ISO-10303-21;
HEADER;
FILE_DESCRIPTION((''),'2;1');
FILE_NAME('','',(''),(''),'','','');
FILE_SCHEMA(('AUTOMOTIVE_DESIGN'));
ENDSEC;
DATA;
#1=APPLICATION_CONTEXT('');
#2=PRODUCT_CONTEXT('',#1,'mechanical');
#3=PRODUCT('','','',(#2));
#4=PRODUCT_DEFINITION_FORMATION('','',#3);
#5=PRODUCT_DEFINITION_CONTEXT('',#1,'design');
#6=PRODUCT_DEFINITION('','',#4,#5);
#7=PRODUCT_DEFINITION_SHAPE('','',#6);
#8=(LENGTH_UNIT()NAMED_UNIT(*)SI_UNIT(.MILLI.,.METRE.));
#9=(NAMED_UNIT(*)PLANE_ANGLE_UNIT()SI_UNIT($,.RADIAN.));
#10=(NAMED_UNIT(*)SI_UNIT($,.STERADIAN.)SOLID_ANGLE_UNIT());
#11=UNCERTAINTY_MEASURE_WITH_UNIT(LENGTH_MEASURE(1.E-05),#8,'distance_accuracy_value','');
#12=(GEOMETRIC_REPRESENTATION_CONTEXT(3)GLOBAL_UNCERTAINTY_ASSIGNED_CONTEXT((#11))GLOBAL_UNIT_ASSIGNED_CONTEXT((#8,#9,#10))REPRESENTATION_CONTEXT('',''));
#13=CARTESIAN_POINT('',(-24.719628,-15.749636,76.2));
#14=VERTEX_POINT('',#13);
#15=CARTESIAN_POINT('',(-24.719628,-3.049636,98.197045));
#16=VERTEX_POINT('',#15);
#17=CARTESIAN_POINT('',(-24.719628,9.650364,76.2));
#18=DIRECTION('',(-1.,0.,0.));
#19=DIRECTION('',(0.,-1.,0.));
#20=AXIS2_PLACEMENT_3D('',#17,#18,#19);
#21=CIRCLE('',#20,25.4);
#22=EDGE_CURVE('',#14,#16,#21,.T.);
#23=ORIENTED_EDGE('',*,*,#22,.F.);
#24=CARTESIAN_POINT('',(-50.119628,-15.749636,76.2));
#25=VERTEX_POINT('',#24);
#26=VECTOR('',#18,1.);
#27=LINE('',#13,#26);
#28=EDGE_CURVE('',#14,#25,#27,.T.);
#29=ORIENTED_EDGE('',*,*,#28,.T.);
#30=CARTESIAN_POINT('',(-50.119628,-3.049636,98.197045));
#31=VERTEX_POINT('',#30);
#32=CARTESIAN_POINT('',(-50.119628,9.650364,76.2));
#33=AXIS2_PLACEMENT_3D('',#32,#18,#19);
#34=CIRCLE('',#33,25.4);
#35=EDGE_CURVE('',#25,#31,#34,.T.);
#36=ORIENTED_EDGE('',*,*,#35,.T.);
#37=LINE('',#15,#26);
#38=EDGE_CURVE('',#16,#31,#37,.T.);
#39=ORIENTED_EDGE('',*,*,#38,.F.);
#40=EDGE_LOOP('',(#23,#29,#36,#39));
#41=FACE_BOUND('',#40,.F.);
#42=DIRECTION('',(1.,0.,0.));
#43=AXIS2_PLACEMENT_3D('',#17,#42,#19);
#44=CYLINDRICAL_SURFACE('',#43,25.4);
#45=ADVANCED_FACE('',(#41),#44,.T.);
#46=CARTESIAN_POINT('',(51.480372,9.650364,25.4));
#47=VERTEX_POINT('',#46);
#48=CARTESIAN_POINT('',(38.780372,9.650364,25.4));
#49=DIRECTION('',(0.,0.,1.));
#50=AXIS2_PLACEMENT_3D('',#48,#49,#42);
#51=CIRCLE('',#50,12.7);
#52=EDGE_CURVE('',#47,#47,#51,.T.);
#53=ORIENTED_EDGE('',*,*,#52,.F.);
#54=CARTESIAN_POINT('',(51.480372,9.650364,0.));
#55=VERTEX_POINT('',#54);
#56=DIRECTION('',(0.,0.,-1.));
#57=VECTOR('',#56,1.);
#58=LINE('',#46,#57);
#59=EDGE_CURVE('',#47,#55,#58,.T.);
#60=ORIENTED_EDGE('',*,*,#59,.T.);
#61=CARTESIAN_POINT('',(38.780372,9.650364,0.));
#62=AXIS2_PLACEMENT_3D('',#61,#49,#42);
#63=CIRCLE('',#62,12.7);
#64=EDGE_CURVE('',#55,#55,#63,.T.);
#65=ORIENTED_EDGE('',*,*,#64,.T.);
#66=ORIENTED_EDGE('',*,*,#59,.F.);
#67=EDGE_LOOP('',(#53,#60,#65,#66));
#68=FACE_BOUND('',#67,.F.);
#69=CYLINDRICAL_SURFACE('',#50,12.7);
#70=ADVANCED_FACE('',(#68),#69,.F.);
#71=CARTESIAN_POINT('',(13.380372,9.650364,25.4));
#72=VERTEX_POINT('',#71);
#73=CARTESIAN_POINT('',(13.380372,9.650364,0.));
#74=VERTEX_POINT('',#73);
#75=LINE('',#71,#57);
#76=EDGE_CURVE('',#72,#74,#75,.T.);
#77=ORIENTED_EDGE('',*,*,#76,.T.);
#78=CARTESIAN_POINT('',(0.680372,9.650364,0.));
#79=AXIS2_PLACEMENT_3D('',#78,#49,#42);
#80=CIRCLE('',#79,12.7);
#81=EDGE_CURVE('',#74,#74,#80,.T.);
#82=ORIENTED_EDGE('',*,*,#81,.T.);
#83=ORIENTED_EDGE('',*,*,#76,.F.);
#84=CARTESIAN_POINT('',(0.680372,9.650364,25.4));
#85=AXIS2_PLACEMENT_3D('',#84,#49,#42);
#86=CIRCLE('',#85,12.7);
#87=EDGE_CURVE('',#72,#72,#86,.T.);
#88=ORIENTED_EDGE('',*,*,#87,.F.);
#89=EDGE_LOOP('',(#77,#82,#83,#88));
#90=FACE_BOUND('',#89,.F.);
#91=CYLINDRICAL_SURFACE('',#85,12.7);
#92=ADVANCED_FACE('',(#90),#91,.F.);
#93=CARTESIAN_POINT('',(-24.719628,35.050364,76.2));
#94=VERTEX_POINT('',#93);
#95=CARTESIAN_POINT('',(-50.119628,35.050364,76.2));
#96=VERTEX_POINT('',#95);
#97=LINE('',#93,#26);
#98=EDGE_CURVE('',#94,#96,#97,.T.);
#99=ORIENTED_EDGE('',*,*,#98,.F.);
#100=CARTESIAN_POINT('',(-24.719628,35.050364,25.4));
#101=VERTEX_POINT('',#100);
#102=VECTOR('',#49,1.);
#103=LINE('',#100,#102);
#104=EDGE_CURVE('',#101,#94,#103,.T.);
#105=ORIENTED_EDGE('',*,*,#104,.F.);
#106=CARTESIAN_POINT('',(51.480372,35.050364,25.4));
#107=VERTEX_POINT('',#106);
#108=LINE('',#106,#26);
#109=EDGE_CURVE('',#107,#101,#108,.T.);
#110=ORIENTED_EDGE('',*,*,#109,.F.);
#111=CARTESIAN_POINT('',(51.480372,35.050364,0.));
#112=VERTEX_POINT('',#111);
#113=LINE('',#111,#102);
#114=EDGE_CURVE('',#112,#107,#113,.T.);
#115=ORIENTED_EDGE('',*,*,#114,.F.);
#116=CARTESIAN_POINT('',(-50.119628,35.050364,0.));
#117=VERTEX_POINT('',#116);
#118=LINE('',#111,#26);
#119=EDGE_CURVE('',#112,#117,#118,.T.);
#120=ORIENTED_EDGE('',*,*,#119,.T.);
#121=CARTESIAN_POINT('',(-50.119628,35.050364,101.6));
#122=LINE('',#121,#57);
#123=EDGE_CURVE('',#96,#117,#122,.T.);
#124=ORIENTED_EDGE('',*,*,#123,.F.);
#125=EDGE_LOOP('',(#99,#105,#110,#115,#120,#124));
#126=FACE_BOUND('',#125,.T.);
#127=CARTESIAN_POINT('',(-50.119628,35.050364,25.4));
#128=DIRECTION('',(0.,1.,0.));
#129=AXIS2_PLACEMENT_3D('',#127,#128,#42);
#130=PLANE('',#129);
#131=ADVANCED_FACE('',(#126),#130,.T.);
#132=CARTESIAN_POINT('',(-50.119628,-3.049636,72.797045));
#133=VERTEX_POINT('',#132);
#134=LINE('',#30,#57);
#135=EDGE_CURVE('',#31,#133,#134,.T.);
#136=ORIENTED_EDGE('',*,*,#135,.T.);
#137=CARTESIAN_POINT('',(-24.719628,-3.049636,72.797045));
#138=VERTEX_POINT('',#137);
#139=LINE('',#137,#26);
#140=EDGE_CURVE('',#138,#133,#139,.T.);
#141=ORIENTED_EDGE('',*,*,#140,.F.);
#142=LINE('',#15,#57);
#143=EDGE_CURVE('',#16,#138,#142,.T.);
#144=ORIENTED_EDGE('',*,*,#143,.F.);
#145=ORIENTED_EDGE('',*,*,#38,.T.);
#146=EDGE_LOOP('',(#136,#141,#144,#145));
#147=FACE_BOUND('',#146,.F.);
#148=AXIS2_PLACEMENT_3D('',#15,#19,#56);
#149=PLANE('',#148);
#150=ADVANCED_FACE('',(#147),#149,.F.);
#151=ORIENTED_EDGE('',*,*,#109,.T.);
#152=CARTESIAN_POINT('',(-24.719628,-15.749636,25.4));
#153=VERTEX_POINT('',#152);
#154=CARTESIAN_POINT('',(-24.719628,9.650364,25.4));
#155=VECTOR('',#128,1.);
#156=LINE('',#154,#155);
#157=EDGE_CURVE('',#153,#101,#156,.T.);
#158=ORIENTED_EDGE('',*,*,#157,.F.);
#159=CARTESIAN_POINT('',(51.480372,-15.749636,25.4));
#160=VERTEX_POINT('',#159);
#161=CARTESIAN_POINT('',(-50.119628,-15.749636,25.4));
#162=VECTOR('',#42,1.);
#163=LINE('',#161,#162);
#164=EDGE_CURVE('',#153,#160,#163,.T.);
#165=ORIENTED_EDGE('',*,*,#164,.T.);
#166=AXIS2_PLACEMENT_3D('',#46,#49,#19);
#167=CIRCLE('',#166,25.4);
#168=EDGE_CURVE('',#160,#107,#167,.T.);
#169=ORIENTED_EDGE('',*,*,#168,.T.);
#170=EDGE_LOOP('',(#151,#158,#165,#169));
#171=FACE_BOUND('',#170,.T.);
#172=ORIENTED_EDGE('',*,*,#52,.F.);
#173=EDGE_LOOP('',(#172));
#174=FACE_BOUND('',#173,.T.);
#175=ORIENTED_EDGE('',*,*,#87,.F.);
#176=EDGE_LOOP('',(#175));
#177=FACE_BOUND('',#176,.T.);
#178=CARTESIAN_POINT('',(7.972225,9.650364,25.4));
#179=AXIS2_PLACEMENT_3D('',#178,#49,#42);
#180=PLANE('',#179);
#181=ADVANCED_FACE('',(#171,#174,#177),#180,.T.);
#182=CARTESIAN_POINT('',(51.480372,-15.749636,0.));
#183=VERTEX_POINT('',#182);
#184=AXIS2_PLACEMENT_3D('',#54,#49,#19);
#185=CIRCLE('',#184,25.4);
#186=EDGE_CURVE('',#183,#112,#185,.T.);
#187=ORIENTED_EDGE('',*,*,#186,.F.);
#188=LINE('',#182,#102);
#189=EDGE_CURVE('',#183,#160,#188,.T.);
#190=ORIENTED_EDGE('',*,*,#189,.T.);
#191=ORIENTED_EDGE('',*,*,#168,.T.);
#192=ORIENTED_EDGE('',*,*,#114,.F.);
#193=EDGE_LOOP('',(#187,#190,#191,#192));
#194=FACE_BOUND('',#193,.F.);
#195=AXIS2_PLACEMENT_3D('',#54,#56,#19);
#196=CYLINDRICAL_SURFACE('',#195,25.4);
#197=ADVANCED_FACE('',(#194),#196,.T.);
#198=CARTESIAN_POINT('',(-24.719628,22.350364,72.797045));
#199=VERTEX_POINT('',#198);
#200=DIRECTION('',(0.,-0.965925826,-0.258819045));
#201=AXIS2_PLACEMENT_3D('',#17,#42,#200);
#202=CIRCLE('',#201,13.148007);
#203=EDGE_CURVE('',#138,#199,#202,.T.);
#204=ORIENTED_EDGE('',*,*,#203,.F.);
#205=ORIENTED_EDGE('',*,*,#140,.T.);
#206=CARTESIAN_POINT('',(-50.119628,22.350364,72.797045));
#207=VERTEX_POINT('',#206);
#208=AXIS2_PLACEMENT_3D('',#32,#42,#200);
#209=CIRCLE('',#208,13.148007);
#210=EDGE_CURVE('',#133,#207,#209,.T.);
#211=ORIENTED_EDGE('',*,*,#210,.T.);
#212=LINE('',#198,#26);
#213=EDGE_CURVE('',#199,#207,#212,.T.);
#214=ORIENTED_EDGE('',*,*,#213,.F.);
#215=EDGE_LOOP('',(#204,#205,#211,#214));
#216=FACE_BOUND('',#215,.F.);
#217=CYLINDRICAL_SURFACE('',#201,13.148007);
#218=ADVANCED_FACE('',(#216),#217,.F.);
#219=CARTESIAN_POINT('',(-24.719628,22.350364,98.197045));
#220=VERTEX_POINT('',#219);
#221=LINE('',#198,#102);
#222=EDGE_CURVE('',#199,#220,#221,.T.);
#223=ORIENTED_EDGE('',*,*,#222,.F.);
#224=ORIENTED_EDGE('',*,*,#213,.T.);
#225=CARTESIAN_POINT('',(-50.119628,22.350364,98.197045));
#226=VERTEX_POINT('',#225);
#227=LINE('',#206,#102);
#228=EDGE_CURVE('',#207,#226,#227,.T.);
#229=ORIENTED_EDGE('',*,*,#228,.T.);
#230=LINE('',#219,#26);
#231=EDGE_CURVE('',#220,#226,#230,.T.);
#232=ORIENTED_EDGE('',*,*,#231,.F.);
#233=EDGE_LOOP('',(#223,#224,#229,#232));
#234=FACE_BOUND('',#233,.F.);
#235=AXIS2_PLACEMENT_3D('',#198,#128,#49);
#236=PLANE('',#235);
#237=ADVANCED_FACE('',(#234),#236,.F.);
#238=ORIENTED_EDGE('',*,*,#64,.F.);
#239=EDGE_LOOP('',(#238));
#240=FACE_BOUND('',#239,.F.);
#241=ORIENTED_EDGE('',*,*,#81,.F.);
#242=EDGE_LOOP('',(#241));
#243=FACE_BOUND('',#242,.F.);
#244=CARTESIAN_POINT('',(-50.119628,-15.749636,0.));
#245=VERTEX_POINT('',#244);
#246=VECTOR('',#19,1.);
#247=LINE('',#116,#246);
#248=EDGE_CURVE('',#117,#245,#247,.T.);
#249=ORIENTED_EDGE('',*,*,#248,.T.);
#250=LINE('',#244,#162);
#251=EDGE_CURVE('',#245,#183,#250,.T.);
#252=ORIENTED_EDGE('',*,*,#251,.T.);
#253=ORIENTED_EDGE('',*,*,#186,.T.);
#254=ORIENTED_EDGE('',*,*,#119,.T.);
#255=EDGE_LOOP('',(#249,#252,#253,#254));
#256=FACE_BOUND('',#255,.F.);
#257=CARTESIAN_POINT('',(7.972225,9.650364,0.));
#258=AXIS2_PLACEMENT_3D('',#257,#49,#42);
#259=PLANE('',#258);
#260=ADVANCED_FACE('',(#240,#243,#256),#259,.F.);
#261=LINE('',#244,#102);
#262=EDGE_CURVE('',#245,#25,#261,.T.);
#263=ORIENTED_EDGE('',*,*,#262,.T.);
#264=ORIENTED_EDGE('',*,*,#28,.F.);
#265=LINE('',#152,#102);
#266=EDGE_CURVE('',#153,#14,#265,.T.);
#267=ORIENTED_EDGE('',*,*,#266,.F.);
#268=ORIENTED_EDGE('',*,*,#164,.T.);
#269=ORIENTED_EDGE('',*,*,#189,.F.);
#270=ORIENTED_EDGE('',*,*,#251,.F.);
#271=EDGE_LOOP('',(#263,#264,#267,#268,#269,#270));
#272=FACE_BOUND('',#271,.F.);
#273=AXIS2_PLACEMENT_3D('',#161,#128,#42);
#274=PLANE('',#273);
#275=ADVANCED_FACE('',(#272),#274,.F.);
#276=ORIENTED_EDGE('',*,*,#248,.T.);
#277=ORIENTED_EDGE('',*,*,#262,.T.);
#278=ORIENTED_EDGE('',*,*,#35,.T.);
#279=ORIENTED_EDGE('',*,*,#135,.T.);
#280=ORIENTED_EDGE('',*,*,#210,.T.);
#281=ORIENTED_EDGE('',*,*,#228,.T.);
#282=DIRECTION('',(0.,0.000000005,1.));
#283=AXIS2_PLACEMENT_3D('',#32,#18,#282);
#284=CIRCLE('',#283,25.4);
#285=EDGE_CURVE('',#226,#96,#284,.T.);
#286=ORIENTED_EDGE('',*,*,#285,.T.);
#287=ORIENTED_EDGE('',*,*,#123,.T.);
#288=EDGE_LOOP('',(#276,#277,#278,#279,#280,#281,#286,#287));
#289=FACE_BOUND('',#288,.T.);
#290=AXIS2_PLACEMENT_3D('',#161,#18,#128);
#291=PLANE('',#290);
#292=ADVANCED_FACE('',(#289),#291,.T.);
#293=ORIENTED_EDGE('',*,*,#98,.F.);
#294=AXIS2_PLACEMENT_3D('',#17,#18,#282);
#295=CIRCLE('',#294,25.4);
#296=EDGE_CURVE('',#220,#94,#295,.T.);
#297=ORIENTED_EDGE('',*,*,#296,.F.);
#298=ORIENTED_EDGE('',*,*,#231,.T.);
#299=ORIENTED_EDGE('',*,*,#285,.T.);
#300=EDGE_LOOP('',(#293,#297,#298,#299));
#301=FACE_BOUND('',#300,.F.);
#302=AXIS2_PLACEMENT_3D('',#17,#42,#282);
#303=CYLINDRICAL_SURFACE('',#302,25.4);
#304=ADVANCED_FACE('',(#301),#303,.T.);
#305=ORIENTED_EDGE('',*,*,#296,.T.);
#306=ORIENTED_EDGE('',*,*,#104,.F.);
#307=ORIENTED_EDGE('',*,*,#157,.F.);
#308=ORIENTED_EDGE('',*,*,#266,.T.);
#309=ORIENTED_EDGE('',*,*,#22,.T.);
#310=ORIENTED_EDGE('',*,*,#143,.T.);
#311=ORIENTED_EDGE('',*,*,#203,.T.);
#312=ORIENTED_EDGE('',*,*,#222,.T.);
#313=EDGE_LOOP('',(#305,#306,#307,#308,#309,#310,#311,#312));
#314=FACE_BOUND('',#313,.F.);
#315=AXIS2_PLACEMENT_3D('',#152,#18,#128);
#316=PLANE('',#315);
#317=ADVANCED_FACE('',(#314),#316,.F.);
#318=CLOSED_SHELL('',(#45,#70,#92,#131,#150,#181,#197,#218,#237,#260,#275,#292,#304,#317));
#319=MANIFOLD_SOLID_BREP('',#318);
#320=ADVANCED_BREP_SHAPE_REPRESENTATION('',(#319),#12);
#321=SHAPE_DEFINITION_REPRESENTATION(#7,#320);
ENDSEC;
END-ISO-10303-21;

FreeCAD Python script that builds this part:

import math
import FreeCAD as App
import Part
import Sketcher
from FreeCAD import Vector
Q = App.Units.Quantity

doc = App.newDocument("Part")
body = doc.addObject("PartDesign::Body", "Body")

# Sketch on XY plane
sketch1 = body.newObject("Sketcher::SketchObject", "Sketch")
sketch1.AttachmentSupport = (doc.getObject("XY_Plane"), [""])
sketch1.MapMode = "FlatFace"
sketch1.addGeometry([
    Part.ArcOfCircle(Part.Circle(Vector(51, 10, 0), Vector(0, 0, 1), 25), math.radians(-90), math.radians(90)),
    Part.LineSegment(Vector(51, 35, 0), Vector(-50, 35, 0)),
    Part.LineSegment(Vector(-50, 35, 0), Vector(-50, -16, 0)),
    Part.LineSegment(Vector(-50, -16, 0), Vector(51, -16, 0)),
], False)
sketch1.addConstraint([
    Sketcher.Constraint("Tangent", 0, 2, 1, 1),
    Sketcher.Constraint("Coincident", 1, 2, 2, 1),
    Sketcher.Constraint("Coincident", 2, 2, 3, 1),
    Sketcher.Constraint("Tangent", 3, 2, 0, 1),
    Sketcher.Constraint("Horizontal", 1),
    Sketcher.Constraint("Vertical", 2),
    Sketcher.Constraint("Horizontal", 3),
    Sketcher.Constraint("Radius", 0, Q("1 in")),
    Sketcher.Constraint("DistanceX", 1, 2, 1, 1, Q("4 in")),
    Sketcher.Constraint("DistanceX", -1, 1, 0, 3, Q("51.480372 mm")),
    Sketcher.Constraint("DistanceY", -1, 1, 0, 3, Q("9.650364 mm")),
])
pad1 = body.newObject("PartDesign::Pad", "Pad")
pad1.Profile = sketch1
pad1.Length = Q("1 in")

# Sketch on XY plane
sketch2 = body.newObject("Sketcher::SketchObject", "Sketch001")
sketch2.AttachmentSupport = (doc.getObject("XY_Plane"), [""])
sketch2.MapMode = "FlatFace"
sketch2.AttachmentOffset = App.Placement(Vector(0, 0, 1 * 25.4), App.Rotation())
sketch2.addGeometry(Part.Circle(Vector(1, 10, 0), Vector(0, 0, 1), 13), False)
sketch2.addConstraint([
    Sketcher.Constraint("Diameter", 0, Q("1 in")),
    Sketcher.Constraint("DistanceX", -1, 1, 0, 3, Q("0.680372 mm")),
    Sketcher.Constraint("DistanceY", -1, 1, 0, 3, Q("9.650364 mm")),
])
pocket1 = body.newObject("PartDesign::Pocket", "Pocket")
pocket1.Profile = sketch2
pocket1.Length = Q("1 in")

# Sketch on XY plane
sketch3 = body.newObject("Sketcher::SketchObject", "Sketch002")
sketch3.AttachmentSupport = (doc.getObject("XY_Plane"), [""])
sketch3.MapMode = "FlatFace"
sketch3.AttachmentOffset = App.Placement(Vector(0, 0, 1 * 25.4), App.Rotation())
sketch3.addGeometry(Part.Circle(Vector(39, 10, 0), Vector(0, 0, 1), 13), False)
sketch3.addConstraint([
    Sketcher.Constraint("Diameter", 0, Q("1 in")),
    Sketcher.Constraint("DistanceX", -1, 1, 0, 3, Q("38.780372 mm")),
    Sketcher.Constraint("DistanceY", -1, 1, 0, 3, Q("9.650364 mm")),
])
pocket2 = body.newObject("PartDesign::Pocket", "Pocket001")
pocket2.Profile = sketch3
pocket2.Length = Q("1 in")

# Sketch on XY plane
sketch4 = body.newObject("Sketcher::SketchObject", "Sketch003")
sketch4.AttachmentSupport = (doc.getObject("XY_Plane"), [""])
sketch4.MapMode = "FlatFace"
sketch4.AttachmentOffset = App.Placement(Vector(0, 0, 1 * 25.4), App.Rotation())
sketch4.addGeometry([
    Part.LineSegment(Vector(-50, 35, 0), Vector(-50, -16, 0)),
    Part.LineSegment(Vector(-50, -16, 0), Vector(-25, -16, 0)),
    Part.LineSegment(Vector(-25, -16, 0), Vector(-25, 35, 0)),
    Part.LineSegment(Vector(-25, 35, 0), Vector(-50, 35, 0)),
], False)
sketch4.addConstraint([
    Sketcher.Constraint("Coincident", 0, 2, 1, 1),
    Sketcher.Constraint("Coincident", 1, 2, 2, 1),
    Sketcher.Constraint("Coincident", 2, 2, 3, 1),
    Sketcher.Constraint("Coincident", 3, 2, 0, 1),
    Sketcher.Constraint("Vertical", 0),
    Sketcher.Constraint("Horizontal", 1),
    Sketcher.Constraint("Vertical", 2),
    Sketcher.Constraint("Horizontal", 3),
    Sketcher.Constraint("DistanceX", 1, 1, 1, 2, Q("1 in")),
    Sketcher.Constraint("DistanceY", 0, 2, 0, 1, Q("2 in")),
    Sketcher.Constraint("DistanceX", 0, 2, -1, 1, Q("50.119628 mm")),
    Sketcher.Constraint("DistanceY", 0, 2, -1, 1, Q("15.749636 mm")),
])
pad2 = body.newObject("PartDesign::Pad", "Pad001")
pad2.Profile = sketch4
pad2.Length = Q("3 in")

# Sketch on YZ plane
sketch5 = body.newObject("Sketcher::SketchObject", "Sketch004")
sketch5.AttachmentSupport = (doc.getObject("YZ_Plane"), [""])
sketch5.MapMode = "FlatFace"
sketch5.AttachmentOffset = App.Placement(Vector(0, 0, -24.719628), App.Rotation())
sketch5.addGeometry([
    Part.ArcOfCircle(Part.Circle(Vector(10, 76, 0), Vector(0, 0, 1), 25), math.radians(0), math.radians(90)),
    Part.LineSegment(Vector(35, 76, 0), Vector(35, 102, 0)),
    Part.LineSegment(Vector(35, 102, 0), Vector(10, 102, 0)),
], False)
sketch5.addConstraint([
    Sketcher.Constraint("Tangent", 0, 1, 1, 1),
    Sketcher.Constraint("Coincident", 1, 2, 2, 1),
    Sketcher.Constraint("Tangent", 2, 2, 0, 2),
    Sketcher.Constraint("Vertical", 1),
    Sketcher.Constraint("Horizontal", 2),
    Sketcher.Constraint("Radius", 0, Q("1 in")),
    Sketcher.Constraint("DistanceY", -1, 1, 0, 3, Q("3 in")),
    Sketcher.Constraint("DistanceX", -1, 1, 0, 3, Q("9.650364 mm")),
])
pocket3 = body.newObject("PartDesign::Pocket", "Pocket002")
pocket3.Profile = sketch5
pocket3.Length = Q("1 in")

# Sketch on YZ plane
sketch6 = body.newObject("Sketcher::SketchObject", "Sketch005")
sketch6.AttachmentSupport = (doc.getObject("YZ_Plane"), [""])
sketch6.MapMode = "FlatFace"
sketch6.AttachmentOffset = App.Placement(Vector(0, 0, -24.719628), App.Rotation())
sketch6.addGeometry([
    Part.ArcOfCircle(Part.Circle(Vector(10, 76, 0), Vector(0, 0, 1), 25), math.radians(90), math.radians(180)),
    Part.LineSegment(Vector(10, 102, 0), Vector(-16, 102, 0)),
    Part.LineSegment(Vector(-16, 102, 0), Vector(-16, 76, 0)),
], False)
sketch6.addConstraint([
    Sketcher.Constraint("Tangent", 0, 1, 1, 1),
    Sketcher.Constraint("Coincident", 1, 2, 2, 1),
    Sketcher.Constraint("Tangent", 2, 2, 0, 2),
    Sketcher.Constraint("Horizontal", 1),
    Sketcher.Constraint("Vertical", 2),
    Sketcher.Constraint("Radius", 0, Q("1 in")),
    Sketcher.Constraint("DistanceY", -1, 1, 0, 3, Q("3 in")),
    Sketcher.Constraint("DistanceX", -1, 1, 0, 3, Q("9.650364 mm")),
])
pocket4 = body.newObject("PartDesign::Pocket", "Pocket003")
pocket4.Profile = sketch6
pocket4.Length = Q("1 in")

# Sketch on YZ plane
sketch7 = body.newObject("Sketcher::SketchObject", "Sketch006")
sketch7.AttachmentSupport = (doc.getObject("YZ_Plane"), [""])
sketch7.MapMode = "FlatFace"
sketch7.AttachmentOffset = App.Placement(Vector(0, 0, -24.719628), App.Rotation())
sketch7.addGeometry([
    Part.ArcOfCircle(Part.Circle(Vector(10, 76, 0), Vector(0, 0, 1), 25), math.radians(90), math.radians(120)),  # 0
    Part.LineSegment(Vector(-3, 98, 0), Vector(-3, 73, 0)),  # 1
    Part.ArcOfCircle(Part.Circle(Vector(10, 76, 0), Vector(0, 0, 1), 13), math.radians(-165), math.radians(-15)),  # 2
    Part.LineSegment(Vector(22, 73, 0), Vector(22, 98, 0)),  # 3
    Part.ArcOfCircle(Part.Circle(Vector(10, 76, 0), Vector(0, 0, 1), 25), math.radians(60), math.radians(90)),  # 4
], False)
sketch7.addConstraint([
    Sketcher.Constraint("Coincident", 0, 2, 1, 1),
    Sketcher.Constraint("Coincident", 1, 2, 2, 1),
    Sketcher.Constraint("Coincident", 2, 2, 3, 1),
    Sketcher.Constraint("Coincident", 3, 2, 4, 1),
    Sketcher.Constraint("Tangent", 4, 2, 0, 1),
    Sketcher.Constraint("Vertical", 1),
    Sketcher.Constraint("Vertical", 3),
    Sketcher.Constraint("Coincident", 2, 3, 0, 3),
    Sketcher.Constraint("Equal", 0, 4),
    Sketcher.Constraint("Horizontal", 1, 2, 2, 2),
    Sketcher.Constraint("Vertical", 2, 3, 4, 2),
    Sketcher.Constraint("Radius", 0, Q("1 in")),
    Sketcher.Constraint("DistanceY", 1, 2, 1, 1, Q("1 in")),
    Sketcher.Constraint("DistanceY", -1, 1, 0, 3, Q("3 in")),
    Sketcher.Constraint("DistanceX", 1, 2, 2, 2, Q("1 in")),
    Sketcher.Constraint("DistanceX", -1, 1, 0, 3, Q("9.650364 mm")),
])
pocket5 = body.newObject("PartDesign::Pocket", "Pocket004")
pocket5.Profile = sketch7
pocket5.Length = Q("1 in")

doc.recompute()
